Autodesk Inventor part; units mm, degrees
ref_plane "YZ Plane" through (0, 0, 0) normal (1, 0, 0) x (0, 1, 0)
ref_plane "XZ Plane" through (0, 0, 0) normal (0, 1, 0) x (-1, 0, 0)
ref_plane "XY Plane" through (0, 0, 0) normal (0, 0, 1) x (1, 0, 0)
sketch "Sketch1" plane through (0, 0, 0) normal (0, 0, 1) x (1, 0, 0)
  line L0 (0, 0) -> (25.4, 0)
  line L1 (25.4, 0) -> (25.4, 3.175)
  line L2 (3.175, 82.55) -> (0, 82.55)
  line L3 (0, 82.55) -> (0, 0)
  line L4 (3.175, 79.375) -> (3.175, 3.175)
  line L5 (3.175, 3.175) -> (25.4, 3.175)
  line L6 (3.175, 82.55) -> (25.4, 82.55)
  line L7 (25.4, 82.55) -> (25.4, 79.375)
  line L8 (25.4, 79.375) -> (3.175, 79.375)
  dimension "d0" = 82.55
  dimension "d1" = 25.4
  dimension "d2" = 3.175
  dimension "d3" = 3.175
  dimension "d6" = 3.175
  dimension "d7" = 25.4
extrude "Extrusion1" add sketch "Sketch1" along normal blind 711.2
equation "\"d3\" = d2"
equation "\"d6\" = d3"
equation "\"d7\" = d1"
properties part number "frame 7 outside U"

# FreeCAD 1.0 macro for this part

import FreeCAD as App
import Part
import Sketcher
from FreeCAD import Vector
Q = App.Units.Quantity


def add_polygon(sketch, points):
    """Adds a closed chain of lines whose ends are joined by coincident constraints."""
    first, n = sketch.GeometryCount, len(points)
    for a, b in zip(points, points[1:] + points[:1]):
        sketch.addGeometry(Part.LineSegment(App.Vector(*a, 0), App.Vector(*b, 0)), False)
    for i in range(n):
        sketch.addConstraint(Sketcher.Constraint("Coincident", first + i, 2, first + (i + 1) % n, 1))

doc = App.newDocument("Part")
body = doc.addObject("PartDesign::Body", "Body")

# Sketch on XY plane
sketch1 = body.newObject("Sketcher::SketchObject", "Sketch")
sketch1.AttachmentSupport = (doc.getObject("XY_Plane"), [""])
sketch1.MapMode = "FlatFace"
add_polygon(sketch1, [(0, 82.5), (0, 0), (25.4, 0), (25.4, 3.2), (3.2, 3.2), (3.2, 79.4), (25.4, 79.4), (25.4, 82.5)])  # lines 0-7
sketch1.addConstraint([
    Sketcher.Constraint("Vertical", 0),
    Sketcher.Constraint("Horizontal", 1),
    Sketcher.Constraint("Vertical", 2),
    Sketcher.Constraint("Horizontal", 3),
    Sketcher.Constraint("Vertical", 4),
    Sketcher.Constraint("Horizontal", 5),
    Sketcher.Constraint("Vertical", 6),
    Sketcher.Constraint("Horizontal", 7),
    Sketcher.Constraint("Coincident", 0, 2, -1, 1),
    Sketcher.Constraint("Vertical", 2, 2, 5, 2),
    Sketcher.Constraint("Equal", 2, 6),
    Sketcher.Constraint("DistanceX", 1, 1, 1, 2, Q("1 in")),
    Sketcher.Constraint("DistanceY", 0, 2, 0, 1, Q("3.25 in")),
    Sketcher.Constraint("DistanceY", 2, 1, 2, 2, Q("0.125 in")),
    Sketcher.Constraint("DistanceX", -1, 1, 3, 2, Q("0.125 in")),
])
pad1 = body.newObject("PartDesign::Pad", "Pad")
pad1.Profile = sketch1
pad1.Length = Q("28 in")

doc.recompute()
